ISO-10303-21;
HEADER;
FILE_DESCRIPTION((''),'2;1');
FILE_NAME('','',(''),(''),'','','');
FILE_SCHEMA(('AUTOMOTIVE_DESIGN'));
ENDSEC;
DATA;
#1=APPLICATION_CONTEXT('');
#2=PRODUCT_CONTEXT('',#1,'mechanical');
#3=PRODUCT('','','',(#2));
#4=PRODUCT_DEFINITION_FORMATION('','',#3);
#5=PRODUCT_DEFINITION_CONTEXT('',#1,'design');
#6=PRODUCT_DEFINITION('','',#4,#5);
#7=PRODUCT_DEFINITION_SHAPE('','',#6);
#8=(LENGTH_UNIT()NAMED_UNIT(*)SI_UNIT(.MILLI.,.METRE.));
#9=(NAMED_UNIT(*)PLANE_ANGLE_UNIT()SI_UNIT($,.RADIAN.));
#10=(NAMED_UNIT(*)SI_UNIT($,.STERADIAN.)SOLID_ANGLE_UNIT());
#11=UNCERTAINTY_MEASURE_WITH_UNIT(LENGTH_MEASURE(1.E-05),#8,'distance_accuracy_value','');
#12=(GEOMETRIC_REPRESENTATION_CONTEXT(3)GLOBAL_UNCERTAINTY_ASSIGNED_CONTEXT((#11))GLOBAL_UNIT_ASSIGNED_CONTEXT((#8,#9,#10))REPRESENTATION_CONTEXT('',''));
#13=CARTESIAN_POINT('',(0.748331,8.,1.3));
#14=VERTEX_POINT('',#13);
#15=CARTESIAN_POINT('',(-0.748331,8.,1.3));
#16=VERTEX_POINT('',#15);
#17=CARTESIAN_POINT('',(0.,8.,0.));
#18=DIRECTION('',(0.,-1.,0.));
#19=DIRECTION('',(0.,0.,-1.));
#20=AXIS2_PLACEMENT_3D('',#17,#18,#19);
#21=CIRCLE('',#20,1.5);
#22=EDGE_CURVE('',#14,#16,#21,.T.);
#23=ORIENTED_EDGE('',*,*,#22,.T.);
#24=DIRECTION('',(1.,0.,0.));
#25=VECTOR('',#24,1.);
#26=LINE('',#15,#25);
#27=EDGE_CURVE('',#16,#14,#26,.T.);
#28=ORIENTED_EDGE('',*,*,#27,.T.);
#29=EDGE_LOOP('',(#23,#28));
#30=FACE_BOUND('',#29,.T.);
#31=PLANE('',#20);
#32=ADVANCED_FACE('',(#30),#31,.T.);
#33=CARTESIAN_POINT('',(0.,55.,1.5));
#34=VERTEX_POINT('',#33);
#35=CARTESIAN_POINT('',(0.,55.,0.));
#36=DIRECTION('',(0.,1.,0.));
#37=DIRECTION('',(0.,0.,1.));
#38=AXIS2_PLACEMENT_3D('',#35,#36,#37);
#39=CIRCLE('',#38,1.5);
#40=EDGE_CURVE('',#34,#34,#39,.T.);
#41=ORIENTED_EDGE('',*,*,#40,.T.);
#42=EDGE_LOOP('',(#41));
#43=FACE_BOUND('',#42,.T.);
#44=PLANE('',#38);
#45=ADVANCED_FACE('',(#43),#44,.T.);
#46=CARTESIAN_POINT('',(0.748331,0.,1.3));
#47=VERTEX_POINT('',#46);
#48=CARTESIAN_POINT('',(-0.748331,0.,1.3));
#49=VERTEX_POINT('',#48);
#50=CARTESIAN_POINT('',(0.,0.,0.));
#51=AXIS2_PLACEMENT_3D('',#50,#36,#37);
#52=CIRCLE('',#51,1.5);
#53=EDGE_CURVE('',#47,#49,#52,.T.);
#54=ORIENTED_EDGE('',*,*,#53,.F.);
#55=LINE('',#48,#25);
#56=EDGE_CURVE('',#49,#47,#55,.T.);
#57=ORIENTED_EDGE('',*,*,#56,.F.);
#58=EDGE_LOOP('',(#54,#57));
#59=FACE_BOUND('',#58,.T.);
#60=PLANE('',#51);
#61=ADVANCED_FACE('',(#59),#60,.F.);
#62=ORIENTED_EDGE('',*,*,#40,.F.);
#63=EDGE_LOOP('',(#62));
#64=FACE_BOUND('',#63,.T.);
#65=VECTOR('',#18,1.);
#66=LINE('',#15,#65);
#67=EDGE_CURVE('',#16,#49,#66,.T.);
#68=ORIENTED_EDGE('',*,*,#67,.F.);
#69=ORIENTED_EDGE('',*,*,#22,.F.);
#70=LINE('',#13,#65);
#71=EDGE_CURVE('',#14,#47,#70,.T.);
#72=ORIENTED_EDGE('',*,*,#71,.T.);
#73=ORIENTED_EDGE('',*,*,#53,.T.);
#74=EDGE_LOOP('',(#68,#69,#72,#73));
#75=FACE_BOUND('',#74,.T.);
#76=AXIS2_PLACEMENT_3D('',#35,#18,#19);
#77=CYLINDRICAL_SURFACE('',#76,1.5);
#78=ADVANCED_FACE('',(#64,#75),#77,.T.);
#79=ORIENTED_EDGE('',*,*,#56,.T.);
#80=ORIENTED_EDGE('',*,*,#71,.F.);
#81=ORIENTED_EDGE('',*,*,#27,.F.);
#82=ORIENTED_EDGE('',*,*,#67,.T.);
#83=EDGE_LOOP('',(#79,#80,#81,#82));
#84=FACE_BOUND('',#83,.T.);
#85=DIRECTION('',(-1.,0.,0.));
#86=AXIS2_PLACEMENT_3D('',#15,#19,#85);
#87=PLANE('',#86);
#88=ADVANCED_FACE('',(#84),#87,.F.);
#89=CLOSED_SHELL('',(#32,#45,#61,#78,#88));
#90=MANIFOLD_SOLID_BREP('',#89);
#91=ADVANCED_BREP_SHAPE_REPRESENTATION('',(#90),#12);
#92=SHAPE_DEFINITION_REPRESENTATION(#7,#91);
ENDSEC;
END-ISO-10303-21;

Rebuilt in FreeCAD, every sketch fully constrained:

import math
import FreeCAD as App
import Part
import Sketcher

V = App.Vector

doc = App.newDocument("Part")
body = doc.addObject("PartDesign::Body", "Body")

# Sketch on XZ plane
sketch1 = doc.addObject("Sketcher::SketchObject", "Sketch")
body.addObject(sketch1)
sketch1.AttachmentSupport = (doc.XZ_Plane, [""])
sketch1.MapMode = "FlatFace"
sketch1.addGeometry(Part.Circle(V(0, 0, 0), V(0, 0, 1), 1.5), False)
sketch1.addConstraint([
    Sketcher.Constraint("Coincident", 0, 3, -1, 1),
    Sketcher.Constraint("Diameter", 0, 3.0),
])
pad1 = doc.addObject("PartDesign::Pad", "Pad")
body.addObject(pad1)
pad1.Profile = sketch1
pad1.Length = 55
pad1.Reversed = True

# Sketch on XZ plane
sketch2 = doc.addObject("Sketcher::SketchObject", "Sketch001")
body.addObject(sketch2)
sketch2.AttachmentSupport = (doc.XZ_Plane, [""])
sketch2.MapMode = "FlatFace"
sketch2.addGeometry([
    Part.LineSegment(V(-0.7, 1.3, 0), V(0.7, 1.3, 0)),
    Part.ArcOfCircle(Part.Circle(V(0, 0, 0), V(0, 0, 1), 1.5), math.radians(60), math.radians(120)),
], False)
sketch2.addConstraint([
    Sketcher.Constraint("Coincident", 0, 1, 1, 2),
    Sketcher.Constraint("Coincident", 1, 1, 0, 2),
    Sketcher.Constraint("Horizontal", 0),
    Sketcher.Constraint("Coincident", 1, 3, -1, 1),
    Sketcher.Constraint("Radius", 1, 1.5),
    Sketcher.Constraint("DistanceY", -1, 1, 0, 1, 1.3),
])
pocket1 = doc.addObject("PartDesign::Pocket", "Pocket")
body.addObject(pocket1)
pocket1.Profile = sketch2
pocket1.Length = 8

doc.recompute()
